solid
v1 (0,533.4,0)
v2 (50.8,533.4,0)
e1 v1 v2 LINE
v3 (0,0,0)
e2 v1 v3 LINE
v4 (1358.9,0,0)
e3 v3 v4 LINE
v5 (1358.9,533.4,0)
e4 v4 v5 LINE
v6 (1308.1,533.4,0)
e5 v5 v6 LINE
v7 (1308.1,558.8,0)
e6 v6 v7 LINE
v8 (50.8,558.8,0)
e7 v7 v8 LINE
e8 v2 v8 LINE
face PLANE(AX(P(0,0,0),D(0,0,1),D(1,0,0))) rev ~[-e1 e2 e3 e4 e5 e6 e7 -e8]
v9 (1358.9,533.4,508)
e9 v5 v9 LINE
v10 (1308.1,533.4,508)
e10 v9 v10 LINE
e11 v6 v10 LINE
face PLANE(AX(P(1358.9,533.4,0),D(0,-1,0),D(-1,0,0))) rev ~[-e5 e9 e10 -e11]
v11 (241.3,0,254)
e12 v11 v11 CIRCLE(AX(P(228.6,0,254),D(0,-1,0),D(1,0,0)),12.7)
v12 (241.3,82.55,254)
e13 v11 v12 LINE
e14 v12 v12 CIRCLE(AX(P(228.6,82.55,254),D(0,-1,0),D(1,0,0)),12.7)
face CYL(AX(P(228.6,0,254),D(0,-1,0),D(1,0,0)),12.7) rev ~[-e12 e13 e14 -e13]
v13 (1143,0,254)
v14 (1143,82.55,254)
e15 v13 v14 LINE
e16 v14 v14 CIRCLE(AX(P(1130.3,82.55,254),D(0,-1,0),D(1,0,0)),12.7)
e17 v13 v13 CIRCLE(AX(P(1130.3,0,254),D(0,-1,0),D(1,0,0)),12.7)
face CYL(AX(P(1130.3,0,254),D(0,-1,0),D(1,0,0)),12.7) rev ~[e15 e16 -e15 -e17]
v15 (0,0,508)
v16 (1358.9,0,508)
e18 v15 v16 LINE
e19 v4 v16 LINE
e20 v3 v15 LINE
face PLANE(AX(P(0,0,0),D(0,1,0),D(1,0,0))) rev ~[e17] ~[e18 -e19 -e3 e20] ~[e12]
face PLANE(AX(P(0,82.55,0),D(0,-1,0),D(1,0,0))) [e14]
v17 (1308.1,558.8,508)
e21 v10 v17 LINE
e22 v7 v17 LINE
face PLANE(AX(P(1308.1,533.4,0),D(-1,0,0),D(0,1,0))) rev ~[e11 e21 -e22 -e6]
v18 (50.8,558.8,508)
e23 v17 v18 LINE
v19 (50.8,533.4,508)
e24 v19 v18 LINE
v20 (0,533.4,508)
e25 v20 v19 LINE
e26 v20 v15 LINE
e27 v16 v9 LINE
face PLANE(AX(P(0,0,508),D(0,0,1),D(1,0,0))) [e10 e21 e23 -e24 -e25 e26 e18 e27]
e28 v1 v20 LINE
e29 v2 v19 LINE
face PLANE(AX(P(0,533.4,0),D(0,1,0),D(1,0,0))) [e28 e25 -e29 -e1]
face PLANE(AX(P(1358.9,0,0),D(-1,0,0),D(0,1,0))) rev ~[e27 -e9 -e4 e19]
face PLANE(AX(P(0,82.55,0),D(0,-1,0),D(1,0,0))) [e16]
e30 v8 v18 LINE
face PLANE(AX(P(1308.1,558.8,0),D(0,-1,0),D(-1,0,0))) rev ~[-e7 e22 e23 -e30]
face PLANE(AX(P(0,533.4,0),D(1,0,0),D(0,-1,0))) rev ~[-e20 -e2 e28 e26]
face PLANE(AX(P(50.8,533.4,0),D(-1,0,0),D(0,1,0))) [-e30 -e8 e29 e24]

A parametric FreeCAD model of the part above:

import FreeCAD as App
import Part
import Sketcher
Q = App.Units.Quantity


def add_polygon(sketch, points):
    """Adds a closed chain of lines whose ends are joined by coincident constraints."""
    first, n = sketch.GeometryCount, len(points)
    for a, b in zip(points, points[1:] + points[:1]):
        sketch.addGeometry(Part.LineSegment(App.Vector(*a, 0), App.Vector(*b, 0)), False)
    for i in range(n):
        sketch.addConstraint(Sketcher.Constraint("Coincident", first + i, 2, first + (i + 1) % n, 1))

doc = App.newDocument("Part")
params = doc.addObject("Spreadsheet::Sheet", "Params")
for row, (alias, value) in enumerate([
    ("sketch1_width", "2 in"),
    ("sketch1_height", "1 in"),
    ("sketch1_width2", "53.5 in"),
    ("pad1_length", "20 in"),
    ("sketch2_diameter", "1 in"),
    ("pocket1_length", "3.25 in"),
], start=1):
    params.set(f"A{row}", alias)
    params.set(f"B{row}", "=" + value)
    params.setAlias(f"B{row}", alias)

body = doc.addObject("PartDesign::Body", "Body")

# Sketch on XY plane
sketch1 = doc.addObject("Sketcher::SketchObject", "Sketch")
body.addObject(sketch1)
sketch1.AttachmentSupport = (doc.XY_Plane, [""])
sketch1.MapMode = "FlatFace"
add_polygon(sketch1, [(0, 533), (0, 0), (1359, 0), (1359, 533), (1308, 533), (1308, 559), (51, 559), (51, 533)])  # lines 0-7
sketch1.addConstraint(Sketcher.Constraint("Vertical", 0))
sketch1.addConstraint(Sketcher.Constraint("Horizontal", 1))
sketch1.addConstraint(Sketcher.Constraint("Vertical", 2))
sketch1.addConstraint(Sketcher.Constraint("Horizontal", 3))
sketch1.addConstraint(Sketcher.Constraint("Vertical", 4))
sketch1.addConstraint(Sketcher.Constraint("Horizontal", 5))
sketch1.addConstraint(Sketcher.Constraint("Vertical", 6))
sketch1.addConstraint(Sketcher.Constraint("Horizontal", 7))
sketch1.addConstraint(Sketcher.Constraint("Coincident", 0, 2, -1, 1))
sketch1.addConstraint(Sketcher.Constraint("Horizontal", 3, 2, 6, 2))
sketch1.addConstraint(Sketcher.Constraint("Equal", 3, 7))
sketch1.addConstraint(Sketcher.Constraint("DistanceX", 3, 2, 3, 1, Q("2 in")))
sketch1.addConstraint(Sketcher.Constraint("DistanceY", 4, 1, 4, 2, Q("1 in")))
sketch1.addConstraint(Sketcher.Constraint("DistanceX", 1, 1, 1, 2, Q("53.5 in")))
sketch1.addConstraint(Sketcher.Constraint("DistanceY", -1, 1, 4, 2, Q("22 in")))
sketch1.setExpression("Constraints[19]", "Params.sketch1_width")
sketch1.setExpression("Constraints[20]", "Params.sketch1_height")
sketch1.setExpression("Constraints[21]", "Params.sketch1_width2")
pad1 = doc.addObject("PartDesign::Pad", "Pad")
body.addObject(pad1)
pad1.Profile = sketch1
pad1.setExpression("Length", "Params.pad1_length")

# Sketch on XZ plane
sketch2 = doc.addObject("Sketcher::SketchObject", "Sketch001")
body.addObject(sketch2)
sketch2.AttachmentSupport = (doc.XZ_Plane, [""])
sketch2.MapMode = "FlatFace"
sketch2.addGeometry(Part.Circle(App.Vector(229, 254, 0), App.Vector(0, 0, 1), 13), False)
sketch2.addGeometry(Part.Circle(App.Vector(1130, 254, 0), App.Vector(0, 0, 1), 13), False)
sketch2.addConstraint(Sketcher.Constraint("Equal", 0, 1))
sketch2.addConstraint(Sketcher.Constraint("Horizontal", 0, 3, 1, 3))
sketch2.addConstraint(Sketcher.Constraint("Diameter", 0, Q("1 in")))
sketch2.addConstraint(Sketcher.Constraint("DistanceX", -1, 1, 0, 3, Q("9 in")))
sketch2.addConstraint(Sketcher.Constraint("DistanceY", -1, 1, 0, 3, Q("10 in")))
sketch2.addConstraint(Sketcher.Constraint("DistanceX", -1, 1, 1, 3, Q("44.5 in")))
sketch2.setExpression("Constraints[2]", "Params.sketch2_diameter")
pocket1 = doc.addObject("PartDesign::Pocket", "Pocket")
body.addObject(pocket1)
pocket1.Profile = sketch2
pocket1.setExpression("Length", "Params.pocket1_length")

doc.recompute()
